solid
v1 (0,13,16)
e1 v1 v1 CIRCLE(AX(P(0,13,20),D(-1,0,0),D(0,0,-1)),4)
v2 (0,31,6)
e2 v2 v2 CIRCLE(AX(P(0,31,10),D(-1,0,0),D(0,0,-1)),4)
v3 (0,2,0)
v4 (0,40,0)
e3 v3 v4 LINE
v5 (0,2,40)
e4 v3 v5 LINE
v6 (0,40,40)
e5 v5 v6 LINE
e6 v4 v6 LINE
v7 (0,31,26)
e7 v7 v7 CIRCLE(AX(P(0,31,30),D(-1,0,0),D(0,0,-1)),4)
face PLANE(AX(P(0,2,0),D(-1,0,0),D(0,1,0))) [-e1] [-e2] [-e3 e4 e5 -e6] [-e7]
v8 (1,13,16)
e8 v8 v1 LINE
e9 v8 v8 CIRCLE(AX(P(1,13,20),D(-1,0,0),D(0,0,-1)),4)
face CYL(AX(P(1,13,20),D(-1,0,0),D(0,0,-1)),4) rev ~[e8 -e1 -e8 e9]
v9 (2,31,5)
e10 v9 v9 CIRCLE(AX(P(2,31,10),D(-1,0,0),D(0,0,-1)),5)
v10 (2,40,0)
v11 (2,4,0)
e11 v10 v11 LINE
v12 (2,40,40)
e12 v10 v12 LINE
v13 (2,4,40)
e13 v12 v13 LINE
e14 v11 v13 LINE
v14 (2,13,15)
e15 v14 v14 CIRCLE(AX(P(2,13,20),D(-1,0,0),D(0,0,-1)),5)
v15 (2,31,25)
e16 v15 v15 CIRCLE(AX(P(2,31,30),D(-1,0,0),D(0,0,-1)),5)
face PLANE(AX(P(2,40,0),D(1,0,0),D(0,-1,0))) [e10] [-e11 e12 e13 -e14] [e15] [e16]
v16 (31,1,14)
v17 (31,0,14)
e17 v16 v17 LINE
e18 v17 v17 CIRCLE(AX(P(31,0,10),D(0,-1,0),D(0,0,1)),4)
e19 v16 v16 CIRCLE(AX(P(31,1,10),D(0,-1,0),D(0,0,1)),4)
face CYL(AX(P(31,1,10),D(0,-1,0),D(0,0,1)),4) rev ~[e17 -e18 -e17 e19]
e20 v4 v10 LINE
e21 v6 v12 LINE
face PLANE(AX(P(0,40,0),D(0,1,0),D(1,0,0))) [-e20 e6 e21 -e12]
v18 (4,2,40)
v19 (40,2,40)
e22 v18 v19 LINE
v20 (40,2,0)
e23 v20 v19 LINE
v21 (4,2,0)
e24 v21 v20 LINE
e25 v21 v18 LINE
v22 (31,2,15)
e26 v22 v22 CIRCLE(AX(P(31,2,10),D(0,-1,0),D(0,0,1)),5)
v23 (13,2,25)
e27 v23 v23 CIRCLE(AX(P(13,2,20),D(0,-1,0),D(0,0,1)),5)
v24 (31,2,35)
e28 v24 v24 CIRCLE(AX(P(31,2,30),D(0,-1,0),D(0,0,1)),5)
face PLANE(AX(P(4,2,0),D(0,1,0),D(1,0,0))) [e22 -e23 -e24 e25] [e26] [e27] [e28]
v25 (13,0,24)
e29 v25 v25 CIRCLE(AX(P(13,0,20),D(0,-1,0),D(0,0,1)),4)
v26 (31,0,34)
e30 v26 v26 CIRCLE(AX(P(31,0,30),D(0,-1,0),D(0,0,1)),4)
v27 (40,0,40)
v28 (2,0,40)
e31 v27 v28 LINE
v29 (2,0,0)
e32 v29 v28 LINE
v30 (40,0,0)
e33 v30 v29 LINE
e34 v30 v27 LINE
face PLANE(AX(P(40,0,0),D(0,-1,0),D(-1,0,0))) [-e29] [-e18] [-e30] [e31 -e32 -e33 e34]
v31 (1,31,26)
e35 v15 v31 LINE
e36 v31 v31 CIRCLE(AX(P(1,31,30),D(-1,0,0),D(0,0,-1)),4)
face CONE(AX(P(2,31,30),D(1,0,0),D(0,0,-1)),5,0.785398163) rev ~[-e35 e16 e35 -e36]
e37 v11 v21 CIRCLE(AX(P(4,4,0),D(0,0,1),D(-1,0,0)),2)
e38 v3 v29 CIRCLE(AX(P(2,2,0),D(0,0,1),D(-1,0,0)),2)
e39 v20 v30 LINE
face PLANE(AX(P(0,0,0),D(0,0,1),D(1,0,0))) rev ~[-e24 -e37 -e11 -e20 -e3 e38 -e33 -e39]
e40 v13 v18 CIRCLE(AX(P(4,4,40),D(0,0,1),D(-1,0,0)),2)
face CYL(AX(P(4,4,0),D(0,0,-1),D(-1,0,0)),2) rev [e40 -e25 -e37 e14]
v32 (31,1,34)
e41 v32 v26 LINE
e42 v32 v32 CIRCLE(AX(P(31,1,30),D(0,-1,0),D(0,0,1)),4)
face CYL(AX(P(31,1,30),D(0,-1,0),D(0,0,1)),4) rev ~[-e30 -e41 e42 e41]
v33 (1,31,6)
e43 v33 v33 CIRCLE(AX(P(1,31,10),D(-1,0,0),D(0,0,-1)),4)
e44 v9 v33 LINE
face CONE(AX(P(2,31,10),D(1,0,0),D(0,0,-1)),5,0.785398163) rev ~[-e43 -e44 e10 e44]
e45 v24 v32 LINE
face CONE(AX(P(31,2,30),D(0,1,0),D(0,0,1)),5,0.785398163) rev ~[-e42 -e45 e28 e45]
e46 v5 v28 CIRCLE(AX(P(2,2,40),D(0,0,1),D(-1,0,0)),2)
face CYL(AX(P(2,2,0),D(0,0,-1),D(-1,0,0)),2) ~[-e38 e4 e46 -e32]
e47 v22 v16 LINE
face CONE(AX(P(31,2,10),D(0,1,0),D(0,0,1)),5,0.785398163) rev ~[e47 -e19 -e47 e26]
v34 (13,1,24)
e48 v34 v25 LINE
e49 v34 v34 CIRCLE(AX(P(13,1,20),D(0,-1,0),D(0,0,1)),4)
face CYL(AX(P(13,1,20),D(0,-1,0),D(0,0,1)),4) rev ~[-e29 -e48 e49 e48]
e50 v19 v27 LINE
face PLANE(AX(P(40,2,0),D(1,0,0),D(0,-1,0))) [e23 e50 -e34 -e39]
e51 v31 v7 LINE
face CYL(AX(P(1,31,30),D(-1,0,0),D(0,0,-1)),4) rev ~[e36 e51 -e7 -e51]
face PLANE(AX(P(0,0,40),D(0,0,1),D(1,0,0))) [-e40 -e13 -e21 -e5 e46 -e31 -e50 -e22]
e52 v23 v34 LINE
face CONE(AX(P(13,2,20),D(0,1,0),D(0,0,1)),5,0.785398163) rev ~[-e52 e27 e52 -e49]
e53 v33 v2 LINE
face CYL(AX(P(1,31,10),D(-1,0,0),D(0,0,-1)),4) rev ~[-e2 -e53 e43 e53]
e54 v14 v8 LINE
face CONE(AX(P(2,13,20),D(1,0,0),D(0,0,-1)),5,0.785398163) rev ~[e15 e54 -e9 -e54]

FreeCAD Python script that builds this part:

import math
import FreeCAD as App
import Part
import Sketcher
from FreeCAD import Vector
Q = App.Units.Quantity

doc = App.newDocument("Part")
params = doc.addObject("Spreadsheet::Sheet", "Params")
for row, (alias, value) in enumerate([
    ("sketch1_radius", "2 mm"),
    ("sketch1_width", "38 mm"),
    ("pad1_length", "40 mm"),
    ("sketch2_diameter", "8 mm"),
    ("hole_diameter", "8 mm"),
    ("hole_csink_diameter", "10 mm"),
    ("sketch3_diameter", "8 mm"),
    ("hole2_diameter", "8 mm"),
    ("hole2_csink_diameter", "10 mm"),
], start=1):
    params.set(f"A{row}", alias)
    params.set(f"B{row}", "=" + value)
    params.setAlias(f"B{row}", alias)

body = doc.addObject("PartDesign::Body", "Body")

# Sketch on XY plane
sketch1 = body.newObject("Sketcher::SketchObject", "Sketch")
sketch1.AttachmentSupport = (doc.getObject("XY_Plane"), [""])
sketch1.MapMode = "FlatFace"
sketch1.addGeometry(Part.LineSegment(Vector(0, 40, 0), Vector(0, 2, 0)), False)
sketch1.addGeometry(Part.ArcOfCircle(Part.Circle(Vector(2, 2, 0), Vector(0, 0, 1), 2), math.radians(180), math.radians(270)), False)
sketch1.addGeometry(Part.LineSegment(Vector(2, 0, 0), Vector(40, 0, 0)), False)
sketch1.addGeometry(Part.LineSegment(Vector(40, 0, 0), Vector(40, 2, 0)), False)
sketch1.addGeometry(Part.LineSegment(Vector(40, 2, 0), Vector(4, 2, 0)), False)
sketch1.addGeometry(Part.ArcOfCircle(Part.Circle(Vector(4, 4, 0), Vector(0, 0, 1), 2), math.radians(180), math.radians(270)), False)
sketch1.addGeometry(Part.LineSegment(Vector(2, 4, 0), Vector(2, 40, 0)), False)
sketch1.addGeometry(Part.LineSegment(Vector(2, 40, 0), Vector(0, 40, 0)), False)
sketch1.addConstraint(Sketcher.Constraint("Tangent", 0, 2, 1, 1))
sketch1.addConstraint(Sketcher.Constraint("Tangent", 1, 2, 2, 1))
sketch1.addConstraint(Sketcher.Constraint("Coincident", 2, 2, 3, 1))
sketch1.addConstraint(Sketcher.Constraint("Coincident", 3, 2, 4, 1))
sketch1.addConstraint(Sketcher.Constraint("Tangent", 4, 2, 5, 2))
sketch1.addConstraint(Sketcher.Constraint("Tangent", 5, 1, 6, 1))
sketch1.addConstraint(Sketcher.Constraint("Coincident", 6, 2, 7, 1))
sketch1.addConstraint(Sketcher.Constraint("Coincident", 7, 2, 0, 1))
sketch1.addConstraint(Sketcher.Constraint("Vertical", 0))
sketch1.addConstraint(Sketcher.Constraint("Horizontal", 2))
sketch1.addConstraint(Sketcher.Constraint("Vertical", 3))
sketch1.addConstraint(Sketcher.Constraint("Horizontal", 4))
sketch1.addConstraint(Sketcher.Constraint("Vertical", 6))
sketch1.addConstraint(Sketcher.Constraint("Horizontal", 7))
sketch1.addConstraint(Sketcher.Constraint("Equal", 1, 5))
sketch1.addConstraint(Sketcher.Constraint("PointOnObject", 0, 2, -2))
sketch1.addConstraint(Sketcher.Constraint("PointOnObject", 1, 2, -1))
sketch1.addConstraint(Sketcher.Constraint("Horizontal", 0, 2, 3, 2))
sketch1.addConstraint(Sketcher.Constraint("Vertical", 1, 2, 5, 1))
sketch1.addConstraint(Sketcher.Constraint("Equal", 2, 0))
sketch1.addConstraint(Sketcher.Constraint("Radius", 1, Q("2 mm")))
sketch1.addConstraint(Sketcher.Constraint("DistanceX", 2, 1, 2, 2, Q("38 mm")))
sketch1.setExpression("Constraints[20]", "Params.sketch1_radius")
sketch1.setExpression("Constraints[21]", "Params.sketch1_width")
pad1 = body.newObject("PartDesign::Pad", "Pad")
pad1.Profile = sketch1
pad1.setExpression("Length", "Params.pad1_length")

# Sketch on YZ plane
sketch2 = body.newObject("Sketcher::SketchObject", "Sketch001")
sketch2.AttachmentSupport = (doc.getObject("YZ_Plane"), [""])
sketch2.MapMode = "FlatFace"
sketch2.AttachmentOffset = App.Placement(Vector(0, 0, 2), App.Rotation())
sketch2.addGeometry(Part.Circle(Vector(31, 30, 0), Vector(0, 0, 1), 4), False)
sketch2.addGeometry(Part.Circle(Vector(31, 10, 0), Vector(0, 0, 1), 4), False)
sketch2.addGeometry(Part.Circle(Vector(13, 20, 0), Vector(0, 0, 1), 4), False)
sketch2.addConstraint(Sketcher.Constraint("Equal", 0, 1))
sketch2.addConstraint(Sketcher.Constraint("Equal", 1, 2))
sketch2.addConstraint(Sketcher.Constraint("Vertical", 0, 3, 1, 3))
sketch2.addConstraint(Sketcher.Constraint("Diameter", 0, Q("8 mm")))
sketch2.addConstraint(Sketcher.Constraint("DistanceX", -1, 1, 0, 3, Q("31 mm")))
sketch2.addConstraint(Sketcher.Constraint("DistanceY", -1, 1, 0, 3, Q("30 mm")))
sketch2.addConstraint(Sketcher.Constraint("DistanceY", -1, 1, 1, 3, Q("10 mm")))
sketch2.addConstraint(Sketcher.Constraint("DistanceX", -1, 1, 2, 3, Q("13 mm")))
sketch2.addConstraint(Sketcher.Constraint("DistanceY", -1, 1, 2, 3, Q("20 mm")))
sketch2.setExpression("Constraints[3]", "Params.sketch2_diameter")
doc.recompute()
hole = body.newObject("PartDesign::Hole", "Hole")
hole.Profile = sketch2
hole.ThreadType = "None"
hole.setExpression("Diameter", "Params.hole_diameter")
hole.DepthType = "ThroughAll"
hole.HoleCutType = "Countersink"
hole.setExpression("HoleCutDiameter", "Params.hole_csink_diameter")
hole.HoleCutCountersinkAngle = 90

# Sketch on XZ plane
sketch3 = body.newObject("Sketcher::SketchObject", "Sketch002")
sketch3.AttachmentSupport = (doc.getObject("XZ_Plane"), [""])
sketch3.MapMode = "FlatFace"
sketch3.AttachmentOffset = App.Placement(Vector(0, 0, -2), App.Rotation())
sketch3.addGeometry(Part.Circle(Vector(13, 20, 0), Vector(0, 0, 1), 4), False)
sketch3.addGeometry(Part.Circle(Vector(31, 30, 0), Vector(0, 0, 1), 4), False)
sketch3.addGeometry(Part.Circle(Vector(31, 10, 0), Vector(0, 0, 1), 4), False)
sketch3.addConstraint(Sketcher.Constraint("Equal", 0, 1))
sketch3.addConstraint(Sketcher.Constraint("Equal", 1, 2))
sketch3.addConstraint(Sketcher.Constraint("Vertical", 1, 3, 2, 3))
sketch3.addConstraint(Sketcher.Constraint("Diameter", 0, Q("8 mm")))
sketch3.addConstraint(Sketcher.Constraint("DistanceX", -1, 1, 0, 3, Q("13 mm")))
sketch3.addConstraint(Sketcher.Constraint("DistanceY", -1, 1, 0, 3, Q("20 mm")))
sketch3.addConstraint(Sketcher.Constraint("DistanceX", -1, 1, 1, 3, Q("31 mm")))
sketch3.addConstraint(Sketcher.Constraint("DistanceY", -1, 1, 1, 3, Q("30 mm")))
sketch3.addConstraint(Sketcher.Constraint("DistanceY", -1, 1, 2, 3, Q("10 mm")))
sketch3.setExpression("Constraints[3]", "Params.sketch3_diameter")
doc.recompute()
hole2 = body.newObject("PartDesign::Hole", "Hole001")
hole2.Profile = sketch3
hole2.ThreadType = "None"
hole2.setExpression("Diameter", "Params.hole2_diameter")
hole2.DepthType = "ThroughAll"
hole2.HoleCutType = "Countersink"
hole2.setExpression("HoleCutDiameter", "Params.hole2_csink_diameter")
hole2.HoleCutCountersinkAngle = 90
hole2.Reversed = True

doc.recompute()
